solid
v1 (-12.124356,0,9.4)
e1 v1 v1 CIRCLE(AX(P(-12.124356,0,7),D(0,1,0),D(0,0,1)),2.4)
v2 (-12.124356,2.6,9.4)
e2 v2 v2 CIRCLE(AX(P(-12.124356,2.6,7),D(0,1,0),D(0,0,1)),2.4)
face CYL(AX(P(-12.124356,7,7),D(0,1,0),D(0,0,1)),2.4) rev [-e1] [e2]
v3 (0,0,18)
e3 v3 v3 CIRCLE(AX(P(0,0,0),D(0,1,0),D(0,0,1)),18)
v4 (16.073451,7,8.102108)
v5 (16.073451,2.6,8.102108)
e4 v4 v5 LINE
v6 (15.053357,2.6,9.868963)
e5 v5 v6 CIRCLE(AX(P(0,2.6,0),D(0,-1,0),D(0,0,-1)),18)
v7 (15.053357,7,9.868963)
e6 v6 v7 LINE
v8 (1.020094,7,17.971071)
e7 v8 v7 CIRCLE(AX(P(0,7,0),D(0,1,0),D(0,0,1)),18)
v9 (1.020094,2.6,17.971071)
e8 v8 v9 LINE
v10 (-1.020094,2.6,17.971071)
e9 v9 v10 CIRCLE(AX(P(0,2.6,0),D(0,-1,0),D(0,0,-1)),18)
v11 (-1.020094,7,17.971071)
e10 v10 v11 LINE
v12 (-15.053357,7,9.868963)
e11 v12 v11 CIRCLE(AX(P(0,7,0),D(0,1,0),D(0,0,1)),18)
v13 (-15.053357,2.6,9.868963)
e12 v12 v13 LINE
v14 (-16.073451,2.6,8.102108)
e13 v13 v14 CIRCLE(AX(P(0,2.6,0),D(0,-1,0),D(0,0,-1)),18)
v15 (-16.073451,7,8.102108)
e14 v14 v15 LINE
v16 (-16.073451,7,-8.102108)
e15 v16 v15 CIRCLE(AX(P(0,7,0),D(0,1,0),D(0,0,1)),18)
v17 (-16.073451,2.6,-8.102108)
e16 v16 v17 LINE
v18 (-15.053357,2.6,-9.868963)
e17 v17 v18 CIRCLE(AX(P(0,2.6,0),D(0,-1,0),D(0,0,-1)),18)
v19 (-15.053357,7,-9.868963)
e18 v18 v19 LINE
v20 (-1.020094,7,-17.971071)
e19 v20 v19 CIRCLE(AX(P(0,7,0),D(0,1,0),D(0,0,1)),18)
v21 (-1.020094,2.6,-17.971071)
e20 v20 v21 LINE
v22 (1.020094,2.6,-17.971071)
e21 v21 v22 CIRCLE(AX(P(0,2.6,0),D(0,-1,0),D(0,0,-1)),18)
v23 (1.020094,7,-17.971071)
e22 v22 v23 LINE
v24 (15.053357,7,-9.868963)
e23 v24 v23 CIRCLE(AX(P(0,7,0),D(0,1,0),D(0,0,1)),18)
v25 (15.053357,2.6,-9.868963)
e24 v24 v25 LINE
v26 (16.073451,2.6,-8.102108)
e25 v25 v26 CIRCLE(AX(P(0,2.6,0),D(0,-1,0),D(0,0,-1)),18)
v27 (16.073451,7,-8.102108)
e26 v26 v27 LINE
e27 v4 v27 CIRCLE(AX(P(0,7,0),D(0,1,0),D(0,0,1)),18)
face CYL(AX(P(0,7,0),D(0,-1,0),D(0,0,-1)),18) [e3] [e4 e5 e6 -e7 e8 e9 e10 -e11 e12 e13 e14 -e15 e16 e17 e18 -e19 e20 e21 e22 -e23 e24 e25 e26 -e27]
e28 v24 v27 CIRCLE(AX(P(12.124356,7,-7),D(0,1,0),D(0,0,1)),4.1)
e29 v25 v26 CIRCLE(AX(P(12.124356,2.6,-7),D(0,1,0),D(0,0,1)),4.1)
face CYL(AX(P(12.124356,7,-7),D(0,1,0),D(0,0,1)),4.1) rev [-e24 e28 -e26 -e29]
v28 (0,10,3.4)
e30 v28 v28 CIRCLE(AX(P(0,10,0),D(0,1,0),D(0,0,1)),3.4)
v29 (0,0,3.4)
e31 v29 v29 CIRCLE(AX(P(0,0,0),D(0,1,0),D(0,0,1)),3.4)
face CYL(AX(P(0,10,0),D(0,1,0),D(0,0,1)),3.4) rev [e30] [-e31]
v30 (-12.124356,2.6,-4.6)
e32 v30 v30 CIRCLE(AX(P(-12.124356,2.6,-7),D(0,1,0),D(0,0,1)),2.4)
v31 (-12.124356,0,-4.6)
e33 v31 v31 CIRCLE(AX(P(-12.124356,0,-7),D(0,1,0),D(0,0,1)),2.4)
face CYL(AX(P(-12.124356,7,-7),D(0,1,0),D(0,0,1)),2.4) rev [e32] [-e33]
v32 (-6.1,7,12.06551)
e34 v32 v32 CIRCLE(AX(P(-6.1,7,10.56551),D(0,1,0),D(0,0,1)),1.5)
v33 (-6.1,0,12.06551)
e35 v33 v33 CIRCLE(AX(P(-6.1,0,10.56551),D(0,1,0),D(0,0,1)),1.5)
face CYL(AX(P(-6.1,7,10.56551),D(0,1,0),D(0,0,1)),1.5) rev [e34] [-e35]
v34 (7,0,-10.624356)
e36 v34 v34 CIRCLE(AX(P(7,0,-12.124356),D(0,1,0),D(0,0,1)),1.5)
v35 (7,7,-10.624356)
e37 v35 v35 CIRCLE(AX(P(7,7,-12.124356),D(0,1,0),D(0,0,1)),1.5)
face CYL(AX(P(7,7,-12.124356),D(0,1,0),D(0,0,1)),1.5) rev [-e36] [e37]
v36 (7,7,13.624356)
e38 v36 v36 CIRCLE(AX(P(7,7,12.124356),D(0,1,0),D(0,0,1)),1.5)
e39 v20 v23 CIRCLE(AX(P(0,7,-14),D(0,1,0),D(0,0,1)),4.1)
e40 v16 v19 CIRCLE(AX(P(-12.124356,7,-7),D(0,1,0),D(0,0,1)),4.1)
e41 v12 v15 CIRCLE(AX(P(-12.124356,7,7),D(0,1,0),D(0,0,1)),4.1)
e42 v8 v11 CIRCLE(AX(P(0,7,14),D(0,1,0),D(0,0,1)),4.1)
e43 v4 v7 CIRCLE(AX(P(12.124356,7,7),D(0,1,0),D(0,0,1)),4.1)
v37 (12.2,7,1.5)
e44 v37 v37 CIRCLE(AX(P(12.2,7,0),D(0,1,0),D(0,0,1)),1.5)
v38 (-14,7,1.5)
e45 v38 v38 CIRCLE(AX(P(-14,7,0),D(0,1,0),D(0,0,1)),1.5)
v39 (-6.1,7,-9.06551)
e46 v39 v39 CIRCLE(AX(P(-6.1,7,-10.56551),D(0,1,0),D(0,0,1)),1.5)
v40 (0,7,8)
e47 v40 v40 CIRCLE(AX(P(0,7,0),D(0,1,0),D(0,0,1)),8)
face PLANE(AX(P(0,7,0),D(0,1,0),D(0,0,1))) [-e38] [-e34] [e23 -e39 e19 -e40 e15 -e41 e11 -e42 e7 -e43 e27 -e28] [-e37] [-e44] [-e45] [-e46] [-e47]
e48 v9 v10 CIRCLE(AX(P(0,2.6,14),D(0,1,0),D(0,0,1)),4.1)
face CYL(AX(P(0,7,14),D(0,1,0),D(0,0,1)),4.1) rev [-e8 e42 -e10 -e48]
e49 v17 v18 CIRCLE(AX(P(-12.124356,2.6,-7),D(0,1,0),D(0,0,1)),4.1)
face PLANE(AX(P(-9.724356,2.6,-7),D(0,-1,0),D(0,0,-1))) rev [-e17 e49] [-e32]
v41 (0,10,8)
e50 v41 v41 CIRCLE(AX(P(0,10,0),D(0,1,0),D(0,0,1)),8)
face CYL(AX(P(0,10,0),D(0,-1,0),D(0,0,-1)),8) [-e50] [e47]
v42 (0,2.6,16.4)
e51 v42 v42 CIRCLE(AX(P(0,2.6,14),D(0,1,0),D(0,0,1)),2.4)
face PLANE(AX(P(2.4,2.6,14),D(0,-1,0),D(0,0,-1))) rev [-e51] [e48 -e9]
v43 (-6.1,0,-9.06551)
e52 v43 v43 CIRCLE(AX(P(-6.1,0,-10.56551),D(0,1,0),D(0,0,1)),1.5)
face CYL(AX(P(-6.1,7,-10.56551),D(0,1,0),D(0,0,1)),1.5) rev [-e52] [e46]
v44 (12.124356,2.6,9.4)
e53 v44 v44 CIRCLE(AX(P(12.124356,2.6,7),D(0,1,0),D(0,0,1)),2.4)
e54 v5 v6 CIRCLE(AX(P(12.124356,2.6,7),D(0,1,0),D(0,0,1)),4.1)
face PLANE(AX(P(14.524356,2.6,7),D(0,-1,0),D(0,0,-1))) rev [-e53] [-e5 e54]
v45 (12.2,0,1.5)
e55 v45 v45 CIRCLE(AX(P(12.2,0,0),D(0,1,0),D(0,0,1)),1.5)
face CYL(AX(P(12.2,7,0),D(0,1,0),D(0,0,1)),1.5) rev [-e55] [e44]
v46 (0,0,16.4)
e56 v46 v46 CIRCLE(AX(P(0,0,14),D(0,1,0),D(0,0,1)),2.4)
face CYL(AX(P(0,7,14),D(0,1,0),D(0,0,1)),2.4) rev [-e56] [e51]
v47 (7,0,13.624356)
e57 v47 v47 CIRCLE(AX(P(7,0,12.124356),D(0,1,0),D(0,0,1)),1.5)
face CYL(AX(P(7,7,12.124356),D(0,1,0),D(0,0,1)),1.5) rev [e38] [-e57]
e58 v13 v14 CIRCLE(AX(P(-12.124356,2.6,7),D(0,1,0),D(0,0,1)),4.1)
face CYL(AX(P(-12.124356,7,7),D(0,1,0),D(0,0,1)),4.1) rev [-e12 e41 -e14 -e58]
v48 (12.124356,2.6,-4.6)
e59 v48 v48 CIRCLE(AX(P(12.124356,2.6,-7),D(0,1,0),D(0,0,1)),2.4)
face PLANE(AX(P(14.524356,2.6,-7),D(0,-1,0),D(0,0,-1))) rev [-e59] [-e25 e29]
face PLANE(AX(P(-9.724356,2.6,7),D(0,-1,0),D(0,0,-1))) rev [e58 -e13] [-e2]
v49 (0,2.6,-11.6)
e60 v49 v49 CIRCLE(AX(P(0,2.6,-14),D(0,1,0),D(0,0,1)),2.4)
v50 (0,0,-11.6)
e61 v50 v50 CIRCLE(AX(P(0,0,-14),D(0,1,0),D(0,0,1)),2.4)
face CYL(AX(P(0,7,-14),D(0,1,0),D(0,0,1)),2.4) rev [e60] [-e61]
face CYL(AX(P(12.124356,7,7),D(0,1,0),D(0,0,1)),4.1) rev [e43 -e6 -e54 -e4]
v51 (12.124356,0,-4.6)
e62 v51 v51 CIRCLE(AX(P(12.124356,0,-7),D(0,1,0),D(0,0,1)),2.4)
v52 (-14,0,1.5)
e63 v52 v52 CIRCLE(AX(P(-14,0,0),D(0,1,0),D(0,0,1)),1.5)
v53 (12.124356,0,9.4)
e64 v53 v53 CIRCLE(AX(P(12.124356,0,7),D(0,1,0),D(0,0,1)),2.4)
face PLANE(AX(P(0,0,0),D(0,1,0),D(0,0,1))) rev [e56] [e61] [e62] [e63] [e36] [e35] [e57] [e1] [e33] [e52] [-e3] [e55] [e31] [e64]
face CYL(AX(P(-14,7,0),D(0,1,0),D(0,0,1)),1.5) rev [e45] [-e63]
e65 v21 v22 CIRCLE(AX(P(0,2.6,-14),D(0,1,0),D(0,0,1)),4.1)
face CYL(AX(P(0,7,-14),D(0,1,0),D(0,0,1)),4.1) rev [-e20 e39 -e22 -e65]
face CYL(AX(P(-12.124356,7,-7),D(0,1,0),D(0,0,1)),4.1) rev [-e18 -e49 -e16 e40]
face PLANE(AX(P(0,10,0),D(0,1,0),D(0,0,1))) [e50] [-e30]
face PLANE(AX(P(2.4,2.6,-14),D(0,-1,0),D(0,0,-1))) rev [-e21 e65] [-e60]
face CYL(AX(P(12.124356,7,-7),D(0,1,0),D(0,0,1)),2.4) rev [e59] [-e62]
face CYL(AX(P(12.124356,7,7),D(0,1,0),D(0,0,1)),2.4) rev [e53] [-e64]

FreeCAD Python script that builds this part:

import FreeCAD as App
import Part
import Sketcher
from FreeCAD import Vector
Q = App.Units.Quantity

doc = App.newDocument("Part")
body = doc.addObject("PartDesign::Body", "Body")

sketch1 = body.newObject("Sketcher::SketchObject", "Sketch")
sketch1.AttachmentSupport = (doc.getObject("XZ_Plane"), [""])
sketch1.MapMode = "FlatFace"
sketch1.addGeometry(Part.Circle(Vector(0, 0, 0), Vector(0, 0, 1), 18), False)
sketch1.addConstraint(Sketcher.Constraint("Coincident", 0, 3, -1, 1))
sketch1.addConstraint(Sketcher.Constraint("Diameter", 0, Q("36 mm")))
pad1 = body.newObject("PartDesign::Pad", "Pad")
pad1.Profile = sketch1
pad1.Length = 7
pad1.Reversed = True

sketch2 = body.newObject("Sketcher::SketchObject", "Sketch001")
sketch2.AttachmentSupport = (doc.getObject("XZ_Plane"), [""])
sketch2.MapMode = "FlatFace"
sketch2.AttachmentOffset = App.Placement(Vector(0, 0, -7), App.Rotation())
sketch2.addGeometry(Part.Circle(Vector(-12.1, -7, 0), Vector(0, 0, 1), 2.4), False)
sketch2.addGeometry(Part.Circle(Vector(0, -14, 0), Vector(0, 0, 1), 2.4), False)
sketch2.addGeometry(Part.Circle(Vector(12.1, -7, 0), Vector(0, 0, 1), 2.4), False)
sketch2.addGeometry(Part.Circle(Vector(12.1, 7, 0), Vector(0, 0, 1), 2.4), False)
sketch2.addGeometry(Part.Circle(Vector(0, 14, 0), Vector(0, 0, 1), 2.4), False)
sketch2.addGeometry(Part.Circle(Vector(-12.1, 7, 0), Vector(0, 0, 1), 2.4), False)
sketch2.addConstraint(Sketcher.Constraint("Equal", 0, 1))
sketch2.addConstraint(Sketcher.Constraint("Equal", 1, 2))
sketch2.addConstraint(Sketcher.Constraint("Equal", 2, 3))
sketch2.addConstraint(Sketcher.Constraint("Equal", 3, 4))
sketch2.addConstraint(Sketcher.Constraint("Equal", 4, 5))
sketch2.addConstraint(Sketcher.Constraint("Symmetric", 0, 3, 3, 3, -1, 1))
sketch2.addConstraint(Sketcher.Constraint("Symmetric", 1, 3, 4, 3, -1, 1))
sketch2.addConstraint(Sketcher.Constraint("Symmetric", 2, 3, 5, 3, -1, 1))
sketch2.addConstraint(Sketcher.Constraint("Symmetric", 0, 3, 2, 3, -2))
sketch2.addConstraint(Sketcher.Constraint("PointOnObject", 1, 3, -2))
sketch2.addConstraint(Sketcher.Constraint("Diameter", 0, Q("4.8 mm")))
sketch2.addConstraint(Sketcher.Constraint("DistanceY", 0, 3, -1, 1, Q("7 mm")))
sketch2.addConstraint(Sketcher.Constraint("DistanceY", 1, 3, -1, 1, Q("14 mm")))
sketch2.addConstraint(Sketcher.Constraint("DistanceX", 0, 3, 2, 3, Q("24.248711 mm")))
doc.recompute()
hole = body.newObject("PartDesign::Hole", "Hole")
hole.Profile = sketch2
hole.ThreadType = "None"
hole.Diameter = 4.8
hole.DepthType = "Dimension"
hole.Depth = 10
hole.DrillPoint = "Angled"
hole.DrillPointAngle = 118
hole.HoleCutType = "Counterbore"
hole.HoleCutDiameter = 8.2
hole.HoleCutDepth = 4.4
hole.Reversed = True

sketch3 = body.newObject("Sketcher::SketchObject", "Sketch002")
sketch3.AttachmentSupport = (doc.getObject("XZ_Plane"), [""])
sketch3.MapMode = "FlatFace"
sketch3.AttachmentOffset = App.Placement(Vector(0, 0, -7), App.Rotation())
sketch3.addGeometry(Part.Circle(Vector(7, 12.1, 0), Vector(0, 0, 1), 1.5), False)
sketch3.addGeometry(Part.Circle(Vector(-14, 0, 0), Vector(0, 0, 1), 1.5), False)
sketch3.addGeometry(Part.Circle(Vector(7, -12.1, 0), Vector(0, 0, 1), 1.5), False)
sketch3.addConstraint(Sketcher.Constraint("Equal", 0, 1))
sketch3.addConstraint(Sketcher.Constraint("Equal", 1, 2))
sketch3.addConstraint(Sketcher.Constraint("Symmetric", 0, 3, 2, 3, -1))
sketch3.addConstraint(Sketcher.Constraint("PointOnObject", 1, 3, -1))
sketch3.addConstraint(Sketcher.Constraint("Diameter", 0, Q("3 mm")))
sketch3.addConstraint(Sketcher.Constraint("DistanceX", -1, 1, 0, 3, Q("7 mm")))
sketch3.addConstraint(Sketcher.Constraint("DistanceX", 1, 3, -1, 1, Q("14 mm")))
sketch3.addConstraint(Sketcher.Constraint("DistanceY", 2, 3, 0, 3, Q("24.248711 mm")))
doc.recompute()
hole2 = body.newObject("PartDesign::Hole", "Hole001")
hole2.Profile = sketch3
hole2.ThreadType = "None"
hole2.Diameter = 3
hole2.DepthType = "Dimension"
hole2.Depth = 10
hole2.DrillPoint = "Angled"
hole2.DrillPointAngle = 118
hole2.Reversed = True

sketch4 = body.newObject("Sketcher::SketchObject", "Sketch003")
sketch4.AttachmentSupport = (doc.getObject("XZ_Plane"), [""])
sketch4.MapMode = "FlatFace"
sketch4.AttachmentOffset = App.Placement(Vector(0, 0, -7), App.Rotation())
sketch4.addGeometry(Part.Circle(Vector(-6.1, -10.6, 0), Vector(0, 0, 1), 1.5), False)
sketch4.addGeometry(Part.Circle(Vector(12.2, 0, 0), Vector(0, 0, 1), 1.5), False)
sketch4.addGeometry(Part.Circle(Vector(-6.1, 10.6, 0), Vector(0, 0, 1), 1.5), False)
sketch4.addConstraint(Sketcher.Constraint("Equal", 0, 1))
sketch4.addConstraint(Sketcher.Constraint("Equal", 1, 2))
sketch4.addConstraint(Sketcher.Constraint("Symmetric", 0, 3, 2, 3, -1))
sketch4.addConstraint(Sketcher.Constraint("PointOnObject", 1, 3, -1))
sketch4.addConstraint(Sketcher.Constraint("Diameter", 0, Q("3 mm")))
sketch4.addConstraint(Sketcher.Constraint("DistanceX", 0, 3, -1, 1, Q("6.1 mm")))
sketch4.addConstraint(Sketcher.Constraint("DistanceX", -1, 1, 1, 3, Q("12.2 mm")))
sketch4.addConstraint(Sketcher.Constraint("DistanceY", 0, 3, -1, 1, Q("10.56551 mm")))
doc.recompute()
hole3 = body.newObject("PartDesign::Hole", "Hole002")
hole3.Profile = sketch4
hole3.ThreadType = "None"
hole3.Diameter = 3
hole3.DepthType = "Dimension"
hole3.Depth = 10
hole3.DrillPoint = "Angled"
hole3.DrillPointAngle = 118
hole3.Reversed = True

sketch5 = body.newObject("Sketcher::SketchObject", "Sketch004")
sketch5.AttachmentSupport = (doc.getObject("XZ_Plane"), [""])
sketch5.MapMode = "FlatFace"
sketch5.AttachmentOffset = App.Placement(Vector(0, 0, -7), App.Rotation())
sketch5.addGeometry(Part.Circle(Vector(0, 0, 0), Vector(0, 0, 1), 8), False)
sketch5.addConstraint(Sketcher.Constraint("Coincident", 0, 3, -1, 1))
sketch5.addConstraint(Sketcher.Constraint("Diameter", 0, Q("16 mm")))
pad2 = body.newObject("PartDesign::Pad", "Pad001")
pad2.Profile = sketch5
pad2.Length = 3
pad2.Reversed = True

sketch6 = body.newObject("Sketcher::SketchObject", "Sketch005")
sketch6.AttachmentSupport = (doc.getObject("XZ_Plane"), [""])
sketch6.MapMode = "FlatFace"
sketch6.AttachmentOffset = App.Placement(Vector(0, 0, -10), App.Rotation())
sketch6.addGeometry(Part.Circle(Vector(0, 0, 0), Vector(0, 0, 1), 3.4), False)
sketch6.addConstraint(Sketcher.Constraint("Coincident", 0, 3, -1, 1))
sketch6.addConstraint(Sketcher.Constraint("Diameter", 0, Q("6.8 mm")))
doc.recompute()
hole4 = body.newObject("PartDesign::Hole", "Hole003")
hole4.Profile = sketch6
hole4.ThreadType = "None"
hole4.Diameter = 6.8
hole4.DepthType = "ThroughAll"
hole4.Reversed = True

doc.recompute()
